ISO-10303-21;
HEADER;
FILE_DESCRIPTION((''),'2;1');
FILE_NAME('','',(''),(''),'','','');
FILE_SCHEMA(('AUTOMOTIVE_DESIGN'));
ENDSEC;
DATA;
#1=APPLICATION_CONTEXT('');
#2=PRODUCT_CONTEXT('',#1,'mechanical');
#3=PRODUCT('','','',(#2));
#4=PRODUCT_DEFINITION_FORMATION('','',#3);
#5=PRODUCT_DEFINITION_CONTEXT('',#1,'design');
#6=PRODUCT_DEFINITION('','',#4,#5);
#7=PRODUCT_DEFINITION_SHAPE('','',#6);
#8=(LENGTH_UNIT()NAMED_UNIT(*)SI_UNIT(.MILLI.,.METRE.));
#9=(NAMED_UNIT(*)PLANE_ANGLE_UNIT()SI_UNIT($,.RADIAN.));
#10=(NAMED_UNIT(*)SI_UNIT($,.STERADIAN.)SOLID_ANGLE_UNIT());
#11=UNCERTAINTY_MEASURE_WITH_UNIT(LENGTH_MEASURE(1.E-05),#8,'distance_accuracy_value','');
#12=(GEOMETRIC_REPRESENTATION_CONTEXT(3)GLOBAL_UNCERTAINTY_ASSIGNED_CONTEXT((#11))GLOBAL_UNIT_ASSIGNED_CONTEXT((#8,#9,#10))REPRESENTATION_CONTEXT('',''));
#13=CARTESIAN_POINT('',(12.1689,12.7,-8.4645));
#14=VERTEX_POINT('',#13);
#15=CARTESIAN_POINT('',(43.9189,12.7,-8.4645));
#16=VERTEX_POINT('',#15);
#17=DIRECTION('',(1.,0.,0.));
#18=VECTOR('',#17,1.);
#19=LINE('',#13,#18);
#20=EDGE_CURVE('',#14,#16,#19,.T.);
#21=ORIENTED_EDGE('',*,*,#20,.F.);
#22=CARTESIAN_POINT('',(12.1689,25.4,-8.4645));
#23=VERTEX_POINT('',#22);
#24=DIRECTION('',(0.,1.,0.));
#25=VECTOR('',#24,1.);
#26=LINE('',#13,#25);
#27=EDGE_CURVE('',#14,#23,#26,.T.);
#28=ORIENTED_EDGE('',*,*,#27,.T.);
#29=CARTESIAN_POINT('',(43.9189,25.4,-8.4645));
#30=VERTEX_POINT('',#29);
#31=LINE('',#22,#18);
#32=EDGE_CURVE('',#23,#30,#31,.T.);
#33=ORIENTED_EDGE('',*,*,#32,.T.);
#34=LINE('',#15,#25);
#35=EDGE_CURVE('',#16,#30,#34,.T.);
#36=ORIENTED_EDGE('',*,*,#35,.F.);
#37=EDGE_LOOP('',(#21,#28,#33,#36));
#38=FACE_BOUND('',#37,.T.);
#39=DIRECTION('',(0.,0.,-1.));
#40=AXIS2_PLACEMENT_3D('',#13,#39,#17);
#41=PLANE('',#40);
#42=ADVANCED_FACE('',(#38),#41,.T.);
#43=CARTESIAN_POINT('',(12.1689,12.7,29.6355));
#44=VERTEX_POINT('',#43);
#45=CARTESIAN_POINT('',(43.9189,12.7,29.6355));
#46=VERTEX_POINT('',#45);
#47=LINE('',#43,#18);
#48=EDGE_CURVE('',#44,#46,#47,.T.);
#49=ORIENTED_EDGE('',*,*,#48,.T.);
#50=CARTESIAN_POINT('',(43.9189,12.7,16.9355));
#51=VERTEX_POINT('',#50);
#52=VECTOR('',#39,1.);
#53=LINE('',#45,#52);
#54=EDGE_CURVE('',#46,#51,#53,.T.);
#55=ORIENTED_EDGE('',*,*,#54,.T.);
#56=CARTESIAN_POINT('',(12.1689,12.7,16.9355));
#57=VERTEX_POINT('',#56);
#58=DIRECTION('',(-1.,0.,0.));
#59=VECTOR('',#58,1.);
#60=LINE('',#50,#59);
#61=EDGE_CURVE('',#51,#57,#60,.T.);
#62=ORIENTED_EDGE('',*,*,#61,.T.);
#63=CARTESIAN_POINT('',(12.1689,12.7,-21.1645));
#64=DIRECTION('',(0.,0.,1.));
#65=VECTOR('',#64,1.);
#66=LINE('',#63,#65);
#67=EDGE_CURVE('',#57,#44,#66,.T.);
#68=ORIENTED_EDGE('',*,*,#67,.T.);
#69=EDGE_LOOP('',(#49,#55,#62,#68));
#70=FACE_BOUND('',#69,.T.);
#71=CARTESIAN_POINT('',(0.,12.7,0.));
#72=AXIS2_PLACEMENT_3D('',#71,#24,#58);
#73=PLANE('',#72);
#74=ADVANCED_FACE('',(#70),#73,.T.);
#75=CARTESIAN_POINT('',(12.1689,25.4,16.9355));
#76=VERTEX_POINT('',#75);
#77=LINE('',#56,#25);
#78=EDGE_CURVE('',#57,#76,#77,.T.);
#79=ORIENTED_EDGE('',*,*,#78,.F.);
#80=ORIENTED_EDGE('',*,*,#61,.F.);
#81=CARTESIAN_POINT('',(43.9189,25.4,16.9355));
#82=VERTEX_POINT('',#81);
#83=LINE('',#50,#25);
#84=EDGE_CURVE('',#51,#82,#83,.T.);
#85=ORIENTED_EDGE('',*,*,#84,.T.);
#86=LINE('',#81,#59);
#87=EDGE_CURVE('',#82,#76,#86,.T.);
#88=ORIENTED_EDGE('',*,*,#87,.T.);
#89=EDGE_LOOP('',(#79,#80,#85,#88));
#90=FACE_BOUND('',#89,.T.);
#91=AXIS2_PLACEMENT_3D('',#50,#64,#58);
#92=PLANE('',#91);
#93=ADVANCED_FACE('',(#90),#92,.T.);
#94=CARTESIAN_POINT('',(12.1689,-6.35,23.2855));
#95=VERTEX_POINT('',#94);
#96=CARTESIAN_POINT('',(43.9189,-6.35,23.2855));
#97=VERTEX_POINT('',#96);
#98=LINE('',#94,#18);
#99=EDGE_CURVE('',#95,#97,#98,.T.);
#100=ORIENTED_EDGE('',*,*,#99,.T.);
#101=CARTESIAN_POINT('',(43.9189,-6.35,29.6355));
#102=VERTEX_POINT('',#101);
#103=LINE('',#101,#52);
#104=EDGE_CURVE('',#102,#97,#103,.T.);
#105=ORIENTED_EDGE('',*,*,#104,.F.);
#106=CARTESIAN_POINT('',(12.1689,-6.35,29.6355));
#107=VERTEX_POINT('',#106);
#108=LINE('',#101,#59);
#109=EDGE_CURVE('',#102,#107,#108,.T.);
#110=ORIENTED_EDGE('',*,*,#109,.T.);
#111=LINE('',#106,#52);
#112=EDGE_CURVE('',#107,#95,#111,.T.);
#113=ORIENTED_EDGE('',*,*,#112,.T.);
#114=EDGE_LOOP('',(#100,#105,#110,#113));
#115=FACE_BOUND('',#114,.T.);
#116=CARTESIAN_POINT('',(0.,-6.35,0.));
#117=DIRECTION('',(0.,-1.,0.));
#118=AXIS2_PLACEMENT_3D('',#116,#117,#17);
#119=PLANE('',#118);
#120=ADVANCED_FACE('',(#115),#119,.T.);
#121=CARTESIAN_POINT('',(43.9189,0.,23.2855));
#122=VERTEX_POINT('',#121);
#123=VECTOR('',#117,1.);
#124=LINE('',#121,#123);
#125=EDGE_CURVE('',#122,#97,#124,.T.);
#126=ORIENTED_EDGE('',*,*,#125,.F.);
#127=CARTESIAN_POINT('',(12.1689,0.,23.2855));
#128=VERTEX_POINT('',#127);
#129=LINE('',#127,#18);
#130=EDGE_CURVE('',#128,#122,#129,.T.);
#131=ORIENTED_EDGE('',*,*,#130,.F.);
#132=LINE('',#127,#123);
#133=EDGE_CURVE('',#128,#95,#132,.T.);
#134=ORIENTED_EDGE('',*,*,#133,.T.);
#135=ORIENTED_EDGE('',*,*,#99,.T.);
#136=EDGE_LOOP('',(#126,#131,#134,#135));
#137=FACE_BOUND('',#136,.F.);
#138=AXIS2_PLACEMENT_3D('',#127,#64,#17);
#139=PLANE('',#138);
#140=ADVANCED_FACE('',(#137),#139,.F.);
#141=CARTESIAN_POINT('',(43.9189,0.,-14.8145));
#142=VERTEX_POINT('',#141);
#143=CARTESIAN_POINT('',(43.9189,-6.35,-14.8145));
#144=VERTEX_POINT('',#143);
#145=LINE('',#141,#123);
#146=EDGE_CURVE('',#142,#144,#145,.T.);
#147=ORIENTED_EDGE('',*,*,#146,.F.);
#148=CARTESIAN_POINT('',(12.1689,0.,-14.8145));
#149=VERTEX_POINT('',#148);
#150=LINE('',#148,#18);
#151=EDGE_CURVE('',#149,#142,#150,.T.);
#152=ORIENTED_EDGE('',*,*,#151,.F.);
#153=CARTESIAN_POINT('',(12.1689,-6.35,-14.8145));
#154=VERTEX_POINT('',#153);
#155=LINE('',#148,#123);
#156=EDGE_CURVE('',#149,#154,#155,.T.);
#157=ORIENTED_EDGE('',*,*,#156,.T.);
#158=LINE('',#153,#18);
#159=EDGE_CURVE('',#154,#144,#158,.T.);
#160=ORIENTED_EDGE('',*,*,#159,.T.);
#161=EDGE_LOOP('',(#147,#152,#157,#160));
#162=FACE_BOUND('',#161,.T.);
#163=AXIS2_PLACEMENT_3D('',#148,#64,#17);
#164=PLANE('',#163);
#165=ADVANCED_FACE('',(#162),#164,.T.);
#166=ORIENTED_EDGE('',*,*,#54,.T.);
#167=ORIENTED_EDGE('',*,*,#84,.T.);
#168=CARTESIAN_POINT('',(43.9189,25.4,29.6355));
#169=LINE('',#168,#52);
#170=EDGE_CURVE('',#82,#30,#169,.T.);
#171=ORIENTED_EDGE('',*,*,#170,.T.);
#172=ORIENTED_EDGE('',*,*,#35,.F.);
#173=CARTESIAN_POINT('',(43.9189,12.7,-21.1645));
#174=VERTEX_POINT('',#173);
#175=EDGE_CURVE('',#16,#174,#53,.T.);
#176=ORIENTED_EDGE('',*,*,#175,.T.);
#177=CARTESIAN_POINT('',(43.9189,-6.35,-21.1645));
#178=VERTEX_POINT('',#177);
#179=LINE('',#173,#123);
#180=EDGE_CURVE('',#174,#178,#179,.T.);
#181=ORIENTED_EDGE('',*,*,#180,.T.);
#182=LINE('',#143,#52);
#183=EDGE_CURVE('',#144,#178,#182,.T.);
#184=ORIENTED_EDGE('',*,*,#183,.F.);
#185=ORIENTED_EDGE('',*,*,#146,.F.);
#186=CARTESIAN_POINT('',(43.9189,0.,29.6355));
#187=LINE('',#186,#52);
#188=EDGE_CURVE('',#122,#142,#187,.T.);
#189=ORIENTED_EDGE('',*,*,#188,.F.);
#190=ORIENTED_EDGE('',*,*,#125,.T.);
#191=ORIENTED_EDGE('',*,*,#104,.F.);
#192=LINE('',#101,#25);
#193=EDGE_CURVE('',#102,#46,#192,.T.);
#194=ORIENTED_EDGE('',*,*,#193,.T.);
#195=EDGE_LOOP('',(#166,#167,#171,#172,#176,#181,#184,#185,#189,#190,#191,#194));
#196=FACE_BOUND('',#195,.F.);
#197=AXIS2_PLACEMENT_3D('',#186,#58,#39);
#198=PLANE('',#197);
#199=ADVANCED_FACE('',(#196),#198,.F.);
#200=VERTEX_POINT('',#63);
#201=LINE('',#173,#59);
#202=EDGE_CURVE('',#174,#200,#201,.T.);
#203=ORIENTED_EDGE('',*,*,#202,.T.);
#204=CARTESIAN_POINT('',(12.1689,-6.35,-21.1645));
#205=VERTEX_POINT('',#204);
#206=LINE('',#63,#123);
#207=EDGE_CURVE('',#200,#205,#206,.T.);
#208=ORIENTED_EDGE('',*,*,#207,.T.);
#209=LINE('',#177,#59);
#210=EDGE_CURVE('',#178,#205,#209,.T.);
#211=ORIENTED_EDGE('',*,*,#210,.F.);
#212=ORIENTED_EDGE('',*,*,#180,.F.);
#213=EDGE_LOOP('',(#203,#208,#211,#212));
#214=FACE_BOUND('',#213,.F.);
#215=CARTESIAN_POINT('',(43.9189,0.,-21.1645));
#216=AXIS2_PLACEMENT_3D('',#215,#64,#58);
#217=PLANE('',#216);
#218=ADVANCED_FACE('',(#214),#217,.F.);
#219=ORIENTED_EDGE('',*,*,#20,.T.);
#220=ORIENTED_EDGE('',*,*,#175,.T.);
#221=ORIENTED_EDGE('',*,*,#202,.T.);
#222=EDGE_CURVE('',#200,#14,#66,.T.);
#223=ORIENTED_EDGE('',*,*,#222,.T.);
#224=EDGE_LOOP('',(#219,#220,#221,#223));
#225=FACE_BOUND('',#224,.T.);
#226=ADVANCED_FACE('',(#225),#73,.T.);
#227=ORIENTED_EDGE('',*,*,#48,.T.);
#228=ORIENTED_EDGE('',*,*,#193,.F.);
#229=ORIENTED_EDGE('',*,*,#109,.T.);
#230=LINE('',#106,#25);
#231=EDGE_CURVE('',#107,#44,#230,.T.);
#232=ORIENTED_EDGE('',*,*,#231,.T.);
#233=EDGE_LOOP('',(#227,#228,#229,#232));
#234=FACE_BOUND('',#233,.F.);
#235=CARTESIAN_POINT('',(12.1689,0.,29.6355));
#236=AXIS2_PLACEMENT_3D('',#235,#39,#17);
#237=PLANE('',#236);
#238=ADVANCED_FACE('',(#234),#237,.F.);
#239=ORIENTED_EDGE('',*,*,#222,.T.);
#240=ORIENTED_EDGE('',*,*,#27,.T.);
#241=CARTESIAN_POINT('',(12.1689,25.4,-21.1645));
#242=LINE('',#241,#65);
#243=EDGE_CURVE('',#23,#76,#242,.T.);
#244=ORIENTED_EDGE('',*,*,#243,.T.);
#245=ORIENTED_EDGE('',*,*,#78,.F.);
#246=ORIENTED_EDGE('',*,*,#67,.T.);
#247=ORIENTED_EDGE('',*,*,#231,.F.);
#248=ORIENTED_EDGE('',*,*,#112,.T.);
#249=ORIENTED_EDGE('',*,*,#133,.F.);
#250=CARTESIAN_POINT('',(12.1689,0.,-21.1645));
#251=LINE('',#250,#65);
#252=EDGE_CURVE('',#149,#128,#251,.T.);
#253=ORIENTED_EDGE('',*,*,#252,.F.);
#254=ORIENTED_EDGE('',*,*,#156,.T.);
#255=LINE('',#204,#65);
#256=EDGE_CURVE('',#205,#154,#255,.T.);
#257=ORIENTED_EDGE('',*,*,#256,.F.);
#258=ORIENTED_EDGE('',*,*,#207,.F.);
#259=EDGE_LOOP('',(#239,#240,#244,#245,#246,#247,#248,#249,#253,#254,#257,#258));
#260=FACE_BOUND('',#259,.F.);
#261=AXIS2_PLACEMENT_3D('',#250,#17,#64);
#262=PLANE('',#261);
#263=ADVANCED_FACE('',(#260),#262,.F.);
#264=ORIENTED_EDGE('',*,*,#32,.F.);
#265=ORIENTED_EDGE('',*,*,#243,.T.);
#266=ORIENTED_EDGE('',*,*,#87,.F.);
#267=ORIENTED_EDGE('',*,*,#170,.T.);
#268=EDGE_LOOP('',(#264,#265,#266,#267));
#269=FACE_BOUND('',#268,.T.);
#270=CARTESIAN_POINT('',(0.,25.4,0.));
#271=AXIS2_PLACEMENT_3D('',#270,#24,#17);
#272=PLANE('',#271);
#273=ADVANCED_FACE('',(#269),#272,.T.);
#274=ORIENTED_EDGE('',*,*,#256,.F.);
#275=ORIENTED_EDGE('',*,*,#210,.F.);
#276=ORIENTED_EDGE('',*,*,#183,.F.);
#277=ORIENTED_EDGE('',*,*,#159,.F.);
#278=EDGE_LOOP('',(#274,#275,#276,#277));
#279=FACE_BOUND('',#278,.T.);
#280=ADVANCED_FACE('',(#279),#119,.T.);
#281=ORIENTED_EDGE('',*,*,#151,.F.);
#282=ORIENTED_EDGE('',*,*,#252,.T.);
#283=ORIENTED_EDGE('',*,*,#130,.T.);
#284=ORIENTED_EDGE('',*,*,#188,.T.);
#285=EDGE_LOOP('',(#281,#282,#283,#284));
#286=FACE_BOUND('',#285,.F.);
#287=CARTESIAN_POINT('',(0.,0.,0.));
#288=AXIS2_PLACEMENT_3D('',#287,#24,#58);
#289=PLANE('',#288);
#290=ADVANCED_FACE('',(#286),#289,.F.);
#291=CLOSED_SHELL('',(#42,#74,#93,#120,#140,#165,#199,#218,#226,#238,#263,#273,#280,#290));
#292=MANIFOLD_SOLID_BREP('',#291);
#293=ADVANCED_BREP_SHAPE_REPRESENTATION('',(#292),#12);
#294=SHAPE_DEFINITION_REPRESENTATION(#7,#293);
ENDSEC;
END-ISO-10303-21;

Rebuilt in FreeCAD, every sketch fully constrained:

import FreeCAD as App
import Part
import Sketcher
from FreeCAD import Vector
Q = App.Units.Quantity

doc = App.newDocument("Part")
body = doc.addObject("PartDesign::Body", "Body")

# Sketch on XZ plane
sketch1 = body.newObject("Sketcher::SketchObject", "Sketch")
sketch1.AttachmentSupport = (doc.getObject("XZ_Plane"), [""])
sketch1.MapMode = "FlatFace"
sketch1.addGeometry([
    Part.LineSegment(Vector(12, -21, 0), Vector(12, 30, 0)),
    Part.LineSegment(Vector(12, 30, 0), Vector(44, 30, 0)),
    Part.LineSegment(Vector(44, 30, 0), Vector(44, -21, 0)),
    Part.LineSegment(Vector(44, -21, 0), Vector(12, -21, 0)),
], False)
sketch1.addConstraint([
    Sketcher.Constraint("Coincident", 0, 2, 1, 1),
    Sketcher.Constraint("Coincident", 1, 2, 2, 1),
    Sketcher.Constraint("Coincident", 2, 2, 3, 1),
    Sketcher.Constraint("Coincident", 3, 2, 0, 1),
    Sketcher.Constraint("Vertical", 0),
    Sketcher.Constraint("Horizontal", 1),
    Sketcher.Constraint("Vertical", 2),
    Sketcher.Constraint("Horizontal", 3),
    Sketcher.Constraint("DistanceY", 0, 1, 0, 2, Q("2 in")),
    Sketcher.Constraint("DistanceX", 1, 1, 1, 2, Q("1.25 in")),
    Sketcher.Constraint("DistanceX", -1, 1, 0, 2, Q("0.4791 in")),
    Sketcher.Constraint("DistanceY", -1, 1, 0, 2, Q("29.6355 mm")),
])
pad1 = body.newObject("PartDesign::Pad", "Pad")
pad1.Profile = sketch1
pad1.Length = Q("0.5 in")
pad1.Reversed = True

# Sketch on XZ plane
sketch2 = body.newObject("Sketcher::SketchObject", "Sketch001")
sketch2.AttachmentSupport = (doc.getObject("XZ_Plane"), [""])
sketch2.MapMode = "FlatFace"
sketch2.AttachmentOffset = App.Placement(Vector(0, 0, -0.5 * 25.4), App.Rotation())
sketch2.addGeometry([
    Part.LineSegment(Vector(12, 17, 0), Vector(44, 17, 0)),
    Part.LineSegment(Vector(44, 17, 0), Vector(44, -8, 0)),
    Part.LineSegment(Vector(44, -8, 0), Vector(12, -8, 0)),
    Part.LineSegment(Vector(12, -8, 0), Vector(12, 17, 0)),
], False)
sketch2.addConstraint([
    Sketcher.Constraint("Coincident", 0, 2, 1, 1),
    Sketcher.Constraint("Coincident", 1, 2, 2, 1),
    Sketcher.Constraint("Coincident", 2, 2, 3, 1),
    Sketcher.Constraint("Coincident", 3, 2, 0, 1),
    Sketcher.Constraint("Horizontal", 0),
    Sketcher.Constraint("Vertical", 1),
    Sketcher.Constraint("Horizontal", 2),
    Sketcher.Constraint("Vertical", 3),
    Sketcher.Constraint("DistanceY", 1, 2, 1, 1, Q("1 in")),
    Sketcher.Constraint("DistanceX", 0, 1, 0, 2, Q("1.25 in")),
    Sketcher.Constraint("DistanceX", -1, 1, 0, 2, Q("1.7291 in")),
    Sketcher.Constraint("DistanceY", -1, 1, 0, 2, Q("16.9355 mm")),
])
pad2 = body.newObject("PartDesign::Pad", "Pad001")
pad2.Profile = sketch2
pad2.Length = Q("0.5 in")
pad2.Reversed = True

# Sketch on XZ plane
sketch3 = body.newObject("Sketcher::SketchObject", "Sketch002")
sketch3.AttachmentSupport = (doc.getObject("XZ_Plane"), [""])
sketch3.MapMode = "FlatFace"
sketch3.addGeometry([
    Part.LineSegment(Vector(12, -21, 0), Vector(44, -21, 0)),  # 0
    Part.LineSegment(Vector(44, -21, 0), Vector(44, -15, 0)),  # 1
    Part.LineSegment(Vector(44, -15, 0), Vector(12, -15, 0)),  # 2
    Part.LineSegment(Vector(12, -15, 0), Vector(12, -21, 0)),  # 3
    Part.LineSegment(Vector(44, 23, 0), Vector(44, 30, 0)),  # 4
    Part.LineSegment(Vector(44, 30, 0), Vector(12, 30, 0)),  # 5
    Part.LineSegment(Vector(12, 30, 0), Vector(12, 23, 0)),  # 6
    Part.LineSegment(Vector(12, 23, 0), Vector(44, 23, 0)),  # 7
], False)
sketch3.addConstraint([
    Sketcher.Constraint("Coincident", 0, 2, 1, 1),
    Sketcher.Constraint("Coincident", 1, 2, 2, 1),
    Sketcher.Constraint("Coincident", 2, 2, 3, 1),
    Sketcher.Constraint("Coincident", 3, 2, 0, 1),
    Sketcher.Constraint("Coincident", 4, 2, 5, 1),
    Sketcher.Constraint("Coincident", 5, 2, 6, 1),
    Sketcher.Constraint("Coincident", 6, 2, 7, 1),
    Sketcher.Constraint("Coincident", 7, 2, 4, 1),
    Sketcher.Constraint("Horizontal", 0),
    Sketcher.Constraint("Vertical", 1),
    Sketcher.Constraint("Horizontal", 2),
    Sketcher.Constraint("Vertical", 3),
    Sketcher.Constraint("Vertical", 4),
    Sketcher.Constraint("Horizontal", 5),
    Sketcher.Constraint("Vertical", 6),
    Sketcher.Constraint("Horizontal", 7),
    Sketcher.Constraint("Vertical", 1, 2, 4, 2),
    Sketcher.Constraint("Vertical", 3, 2, 5, 2),
    Sketcher.Constraint("Equal", 3, 4),
    Sketcher.Constraint("DistanceY", 1, 1, 1, 2, Q("0.25 in")),
    Sketcher.Constraint("DistanceY", 0, 2, 4, 2, Q("2 in")),
    Sketcher.Constraint("DistanceX", 0, 1, 0, 2, Q("1.25 in")),
    Sketcher.Constraint("DistanceX", -1, 1, 0, 2, Q("1.7291 in")),
    Sketcher.Constraint("DistanceY", 0, 2, -1, 1, Q("21.1645 mm")),
])
pad3 = body.newObject("PartDesign::Pad", "Pad002")
pad3.Profile = sketch3
pad3.Length = Q("0.25 in")

doc.recompute()
